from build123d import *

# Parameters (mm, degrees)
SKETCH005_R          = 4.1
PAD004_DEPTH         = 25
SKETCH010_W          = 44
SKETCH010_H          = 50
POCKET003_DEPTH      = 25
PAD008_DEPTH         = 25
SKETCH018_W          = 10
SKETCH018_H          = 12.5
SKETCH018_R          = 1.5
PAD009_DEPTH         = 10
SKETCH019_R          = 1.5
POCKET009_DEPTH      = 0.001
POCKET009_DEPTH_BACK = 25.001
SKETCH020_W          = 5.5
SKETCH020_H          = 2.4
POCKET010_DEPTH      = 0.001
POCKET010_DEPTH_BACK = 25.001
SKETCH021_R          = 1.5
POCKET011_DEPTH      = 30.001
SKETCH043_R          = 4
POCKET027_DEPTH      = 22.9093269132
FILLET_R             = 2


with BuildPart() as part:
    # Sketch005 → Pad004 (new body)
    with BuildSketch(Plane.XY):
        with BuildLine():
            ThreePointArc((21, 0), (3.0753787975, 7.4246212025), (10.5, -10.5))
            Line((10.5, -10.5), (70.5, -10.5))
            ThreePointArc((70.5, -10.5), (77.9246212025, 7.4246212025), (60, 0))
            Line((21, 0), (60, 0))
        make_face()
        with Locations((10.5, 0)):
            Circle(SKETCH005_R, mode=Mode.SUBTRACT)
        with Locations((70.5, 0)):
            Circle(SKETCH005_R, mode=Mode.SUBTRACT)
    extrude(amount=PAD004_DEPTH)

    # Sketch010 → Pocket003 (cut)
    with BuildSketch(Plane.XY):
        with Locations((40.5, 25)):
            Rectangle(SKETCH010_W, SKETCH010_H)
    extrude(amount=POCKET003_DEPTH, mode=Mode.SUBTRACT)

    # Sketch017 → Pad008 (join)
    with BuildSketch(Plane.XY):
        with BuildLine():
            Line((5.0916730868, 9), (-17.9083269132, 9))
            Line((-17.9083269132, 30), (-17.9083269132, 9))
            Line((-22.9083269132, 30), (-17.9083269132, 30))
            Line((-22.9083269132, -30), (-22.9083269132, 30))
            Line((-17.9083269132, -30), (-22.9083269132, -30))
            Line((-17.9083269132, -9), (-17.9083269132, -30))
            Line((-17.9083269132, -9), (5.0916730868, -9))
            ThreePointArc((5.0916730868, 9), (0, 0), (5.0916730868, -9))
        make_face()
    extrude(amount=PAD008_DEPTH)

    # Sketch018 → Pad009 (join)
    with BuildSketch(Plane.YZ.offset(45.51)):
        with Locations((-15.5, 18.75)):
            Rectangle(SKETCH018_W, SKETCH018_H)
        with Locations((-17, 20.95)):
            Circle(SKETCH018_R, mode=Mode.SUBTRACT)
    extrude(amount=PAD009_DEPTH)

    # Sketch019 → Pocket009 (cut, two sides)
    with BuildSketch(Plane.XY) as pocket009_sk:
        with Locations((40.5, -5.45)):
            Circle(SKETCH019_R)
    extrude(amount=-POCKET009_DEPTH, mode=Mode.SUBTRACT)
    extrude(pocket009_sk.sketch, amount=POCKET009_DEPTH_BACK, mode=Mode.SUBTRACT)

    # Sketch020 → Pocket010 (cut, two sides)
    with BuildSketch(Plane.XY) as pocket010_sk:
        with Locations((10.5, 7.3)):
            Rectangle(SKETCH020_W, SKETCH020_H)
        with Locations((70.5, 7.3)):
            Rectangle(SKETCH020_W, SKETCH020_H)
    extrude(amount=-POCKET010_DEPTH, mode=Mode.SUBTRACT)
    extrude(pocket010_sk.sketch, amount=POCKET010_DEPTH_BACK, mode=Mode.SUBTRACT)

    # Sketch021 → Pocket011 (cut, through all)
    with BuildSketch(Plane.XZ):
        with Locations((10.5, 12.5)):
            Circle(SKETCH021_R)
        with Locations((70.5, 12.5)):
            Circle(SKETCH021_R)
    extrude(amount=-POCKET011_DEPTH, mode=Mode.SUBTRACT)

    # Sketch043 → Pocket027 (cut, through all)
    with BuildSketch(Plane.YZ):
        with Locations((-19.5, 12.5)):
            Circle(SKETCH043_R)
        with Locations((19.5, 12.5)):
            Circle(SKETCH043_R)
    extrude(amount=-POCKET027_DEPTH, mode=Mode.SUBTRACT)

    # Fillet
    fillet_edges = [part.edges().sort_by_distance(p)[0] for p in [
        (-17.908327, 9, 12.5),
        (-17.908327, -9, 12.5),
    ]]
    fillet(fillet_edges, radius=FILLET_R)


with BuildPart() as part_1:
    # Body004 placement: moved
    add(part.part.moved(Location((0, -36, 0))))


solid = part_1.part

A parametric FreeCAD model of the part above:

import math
import FreeCAD as App
import Part
import Sketcher
Q = App.Units.Quantity


def edges_at(feature, points):
    """Names of the edges that pass closest to the given points."""
    edges = feature.Shape.Edges
    near = lambda p: min(range(len(edges)), key=lambda i: edges[i].distToShape(Part.Vertex(*p))[0])
    return sorted({f"Edge{near(p) + 1}" for p in points})

doc = App.newDocument("Part")
body = doc.addObject("PartDesign::Body", "Body")

# Sketch on XY plane
sketch1 = body.newObject("Sketcher::SketchObject", "Sketch")
sketch1.AttachmentSupport = (doc.getObject("XY_Plane"), [""])
sketch1.MapMode = "FlatFace"
sketch1.addGeometry(Part.ArcOfCircle(Part.Circle(App.Vector(10.5, 0, 0), App.Vector(0, 0, 1), 10.5), math.radians(0), math.radians(270)), False)
sketch1.addGeometry(Part.LineSegment(App.Vector(10.5, -10.5, 0), App.Vector(70.5, -10.5, 0)), False)
sketch1.addGeometry(Part.ArcOfCircle(Part.Circle(App.Vector(70.5, 0, 0), App.Vector(0, 0, 1), 10.5), math.radians(-90), math.radians(180)), False)
sketch1.addGeometry(Part.LineSegment(App.Vector(60, 0, 0), App.Vector(21, 0, 0)), False)
sketch1.addGeometry(Part.Circle(App.Vector(10.5, 0, 0), App.Vector(0, 0, 1), 4.1), False)
sketch1.addGeometry(Part.Circle(App.Vector(70.5, 0, 0), App.Vector(0, 0, 1), 4.1), False)
sketch1.addConstraint(Sketcher.Constraint("Tangent", 0, 2, 1, 1))
sketch1.addConstraint(Sketcher.Constraint("Tangent", 1, 2, 2, 1))
sketch1.addConstraint(Sketcher.Constraint("Coincident", 2, 2, 3, 1))
sketch1.addConstraint(Sketcher.Constraint("Coincident", 3, 2, 0, 1))
sketch1.addConstraint(Sketcher.Constraint("Horizontal", 1))
sketch1.addConstraint(Sketcher.Constraint("Horizontal", 3))
sketch1.addConstraint(Sketcher.Constraint("Coincident", 4, 3, 0, 3))
sketch1.addConstraint(Sketcher.Constraint("Coincident", 5, 3, 2, 3))
sketch1.addConstraint(Sketcher.Constraint("Equal", 0, 2))
sketch1.addConstraint(Sketcher.Constraint("Equal", 4, 5))
sketch1.addConstraint(Sketcher.Constraint("PointOnObject", 0, 3, -1))
sketch1.addConstraint(Sketcher.Constraint("PointOnObject", 2, 2, -1))
sketch1.addConstraint(Sketcher.Constraint("Diameter", 4, Q("8.2 mm")))
sketch1.addConstraint(Sketcher.Constraint("Radius", 0, Q("10.5 mm")))
sketch1.addConstraint(Sketcher.Constraint("DistanceX", 1, 1, 1, 2, Q("60 mm")))
sketch1.addConstraint(Sketcher.Constraint("DistanceX", -1, 1, 2, 2, Q("60 mm")))
pad1 = body.newObject("PartDesign::Pad", "Pad")
pad1.Profile = sketch1
pad1.Length = 25

# Sketch on XY plane
sketch2 = body.newObject("Sketcher::SketchObject", "Sketch001")
sketch2.AttachmentSupport = (doc.getObject("XY_Plane"), [""])
sketch2.MapMode = "FlatFace"
sketch2.addGeometry(Part.LineSegment(App.Vector(18.5, 50, 0), App.Vector(18.5, 0, 0)), False)
sketch2.addGeometry(Part.LineSegment(App.Vector(18.5, 0, 0), App.Vector(62.5, 0, 0)), False)
sketch2.addGeometry(Part.LineSegment(App.Vector(62.5, 0, 0), App.Vector(62.5, 50, 0)), False)
sketch2.addGeometry(Part.LineSegment(App.Vector(62.5, 50, 0), App.Vector(18.5, 50, 0)), False)
sketch2.addConstraint(Sketcher.Constraint("Coincident", 0, 2, 1, 1))
sketch2.addConstraint(Sketcher.Constraint("Coincident", 1, 2, 2, 1))
sketch2.addConstraint(Sketcher.Constraint("Coincident", 2, 2, 3, 1))
sketch2.addConstraint(Sketcher.Constraint("Coincident", 3, 2, 0, 1))
sketch2.addConstraint(Sketcher.Constraint("Vertical", 0))
sketch2.addConstraint(Sketcher.Constraint("Horizontal", 1))
sketch2.addConstraint(Sketcher.Constraint("Vertical", 2))
sketch2.addConstraint(Sketcher.Constraint("Horizontal", 3))
sketch2.addConstraint(Sketcher.Constraint("PointOnObject", 0, 2, -1))
sketch2.addConstraint(Sketcher.Constraint("DistanceX", 1, 1, 1, 2, Q("44 mm")))
sketch2.addConstraint(Sketcher.Constraint("DistanceY", 0, 2, 0, 1, Q("50 mm")))
sketch2.addConstraint(Sketcher.Constraint("DistanceX", -1, 1, 0, 2, Q("18.5 mm")))
pocket1 = body.newObject("PartDesign::Pocket", "Pocket")
pocket1.Profile = sketch2
pocket1.Length = 25
pocket1.Reversed = True

# Sketch on XY plane
sketch3 = body.newObject("Sketcher::SketchObject", "Sketch002")
sketch3.AttachmentSupport = (doc.getObject("XY_Plane"), [""])
sketch3.MapMode = "FlatFace"
sketch3.addGeometry(Part.LineSegment(App.Vector(5.091673, 9, 0), App.Vector(-17.908327, 9, 0)), False)
sketch3.addGeometry(Part.LineSegment(App.Vector(-17.908327, 9, 0), App.Vector(-17.908327, 30, 0)), False)
sketch3.addGeometry(Part.LineSegment(App.Vector(-17.908327, 30, 0), App.Vector(-22.908327, 30, 0)), False)
sketch3.addGeometry(Part.LineSegment(App.Vector(-22.908327, 30, 0), App.Vector(-22.908327, -30, 0)), False)
sketch3.addGeometry(Part.LineSegment(App.Vector(-22.908327, -30, 0), App.Vector(-17.908327, -30, 0)), False)
sketch3.addGeometry(Part.LineSegment(App.Vector(-17.908327, -30, 0), App.Vector(-17.908327, -9, 0)), False)
sketch3.addGeometry(Part.LineSegment(App.Vector(-17.908327, -9, 0), App.Vector(5.091673, -9, 0)), False)
sketch3.addGeometry(Part.ArcOfCircle(Part.Circle(App.Vector(10.5, 0, 0), App.Vector(0, 0, 1), 10.5), math.radians(121.002719), math.radians(238.997281)), False)
sketch3.addConstraint(Sketcher.Constraint("Coincident", 0, 2, 1, 1))
sketch3.addConstraint(Sketcher.Constraint("Coincident", 1, 2, 2, 1))
sketch3.addConstraint(Sketcher.Constraint("Coincident", 2, 2, 3, 1))
sketch3.addConstraint(Sketcher.Constraint("Coincident", 3, 2, 4, 1))
sketch3.addConstraint(Sketcher.Constraint("Coincident", 4, 2, 5, 1))
sketch3.addConstraint(Sketcher.Constraint("Coincident", 5, 2, 6, 1))
sketch3.addConstraint(Sketcher.Constraint("Coincident", 6, 2, 7, 2))
sketch3.addConstraint(Sketcher.Constraint("Coincident", 7, 1, 0, 1))
sketch3.addConstraint(Sketcher.Constraint("Horizontal", 0))
sketch3.addConstraint(Sketcher.Constraint("Vertical", 1))
sketch3.addConstraint(Sketcher.Constraint("Horizontal", 2))
sketch3.addConstraint(Sketcher.Constraint("Vertical", 3))
sketch3.addConstraint(Sketcher.Constraint("Horizontal", 4))
sketch3.addConstraint(Sketcher.Constraint("Vertical", 5))
sketch3.addConstraint(Sketcher.Constraint("Horizontal", 6))
sketch3.addConstraint(Sketcher.Constraint("Symmetric", 1, 2, 4, 2, -1))
sketch3.addConstraint(Sketcher.Constraint("Symmetric", 6, 2, 7, 1, -1))
sketch3.addConstraint(Sketcher.Constraint("Radius", 7, Q("10.5 mm")))
sketch3.addConstraint(Sketcher.Constraint("DistanceX", 0, 2, 0, 1, Q("23 mm")))
sketch3.addConstraint(Sketcher.Constraint("DistanceX", 2, 2, 2, 1, Q("5 mm")))
sketch3.addConstraint(Sketcher.Constraint("DistanceY", 1, 1, 1, 2, Q("21 mm")))
sketch3.addConstraint(Sketcher.Constraint("DistanceY", 3, 2, 3, 1, Q("60 mm")))
sketch3.addConstraint(Sketcher.Constraint("DistanceX", -1, 1, 7, 3, Q("10.5 mm")))
pad2 = body.newObject("PartDesign::Pad", "Pad001")
pad2.Profile = sketch3
pad2.Length = 25

# Sketch on YZ plane
sketch4 = body.newObject("Sketcher::SketchObject", "Sketch003")
sketch4.AttachmentSupport = (doc.getObject("YZ_Plane"), [""])
sketch4.MapMode = "FlatFace"
sketch4.AttachmentOffset = App.Placement(App.Vector(0, 0, 45.51), App.Rotation())
sketch4.addGeometry(Part.LineSegment(App.Vector(-20.5, 25, 0), App.Vector(-20.5, 12.5, 0)), False)
sketch4.addGeometry(Part.LineSegment(App.Vector(-20.5, 12.5, 0), App.Vector(-10.5, 12.5, 0)), False)
sketch4.addGeometry(Part.LineSegment(App.Vector(-10.5, 12.5, 0), App.Vector(-10.5, 25, 0)), False)
sketch4.addGeometry(Part.LineSegment(App.Vector(-10.5, 25, 0), App.Vector(-20.5, 25, 0)), False)
sketch4.addGeometry(Part.Circle(App.Vector(-17, 20.95, 0), App.Vector(0, 0, 1), 1.5), False)
sketch4.addConstraint(Sketcher.Constraint("Coincident", 0, 2, 1, 1))
sketch4.addConstraint(Sketcher.Constraint("Coincident", 1, 2, 2, 1))
sketch4.addConstraint(Sketcher.Constraint("Coincident", 2, 2, 3, 1))
sketch4.addConstraint(Sketcher.Constraint("Coincident", 3, 2, 0, 1))
sketch4.addConstraint(Sketcher.Constraint("Vertical", 0))
sketch4.addConstraint(Sketcher.Constraint("Horizontal", 1))
sketch4.addConstraint(Sketcher.Constraint("Vertical", 2))
sketch4.addConstraint(Sketcher.Constraint("Horizontal", 3))
sketch4.addConstraint(Sketcher.Constraint("Diameter", 4, Q("3 mm")))
sketch4.addConstraint(Sketcher.Constraint("DistanceX", 1, 1, 1, 2, Q("10 mm")))
sketch4.addConstraint(Sketcher.Constraint("DistanceY", 0, 2, 0, 1, Q("12.5 mm")))
sketch4.addConstraint(Sketcher.Constraint("DistanceX", 4, 3, -1, 1, Q("17 mm")))
sketch4.addConstraint(Sketcher.Constraint("DistanceY", -1, 1, 2, 2, Q("25 mm")))
sketch4.addConstraint(Sketcher.Constraint("DistanceX", 0, 2, -1, 1, Q("20.5 mm")))
sketch4.addConstraint(Sketcher.Constraint("DistanceY", -1, 1, 4, 3, Q("20.95 mm")))
pad3 = body.newObject("PartDesign::Pad", "Pad002")
pad3.Profile = sketch4
pad3.Length = 10

# Sketch on XY plane
sketch5 = body.newObject("Sketcher::SketchObject", "Sketch004")
sketch5.AttachmentSupport = (doc.getObject("XY_Plane"), [""])
sketch5.MapMode = "FlatFace"
sketch5.addGeometry(Part.Circle(App.Vector(40.5, -5.45, 0), App.Vector(0, 0, 1), 1.5), False)
sketch5.addConstraint(Sketcher.Constraint("Diameter", 0, Q("3 mm")))
sketch5.addConstraint(Sketcher.Constraint("DistanceX", -1, 1, 0, 3, Q("40.5 mm")))
sketch5.addConstraint(Sketcher.Constraint("DistanceY", 0, 3, -1, 1, Q("5.45 mm")))
pocket2 = body.newObject("PartDesign::Pocket", "Pocket001")
pocket2.Profile = sketch5
pocket2.Type = "ThroughAll"
pocket2.Midplane = True

# Sketch on XY plane
sketch6 = body.newObject("Sketcher::SketchObject", "Sketch005")
sketch6.AttachmentSupport = (doc.getObject("XY_Plane"), [""])
sketch6.MapMode = "FlatFace"
sketch6.addGeometry(Part.LineSegment(App.Vector(7.75, 8.5, 0), App.Vector(7.75, 6.1, 0)), False)
sketch6.addGeometry(Part.LineSegment(App.Vector(7.75, 6.1, 0), App.Vector(13.25, 6.1, 0)), False)
sketch6.addGeometry(Part.LineSegment(App.Vector(13.25, 6.1, 0), App.Vector(13.25, 8.5, 0)), False)
sketch6.addGeometry(Part.LineSegment(App.Vector(13.25, 8.5, 0), App.Vector(7.75, 8.5, 0)), False)
sketch6.addGeometry(Part.LineSegment(App.Vector(67.75, 8.5, 0), App.Vector(67.75, 6.1, 0)), False)
sketch6.addGeometry(Part.LineSegment(App.Vector(67.75, 6.1, 0), App.Vector(73.25, 6.1, 0)), False)
sketch6.addGeometry(Part.LineSegment(App.Vector(73.25, 6.1, 0), App.Vector(73.25, 8.5, 0)), False)
sketch6.addGeometry(Part.LineSegment(App.Vector(73.25, 8.5, 0), App.Vector(67.75, 8.5, 0)), False)
sketch6.addConstraint(Sketcher.Constraint("Coincident", 0, 2, 1, 1))
sketch6.addConstraint(Sketcher.Constraint("Coincident", 1, 2, 2, 1))
sketch6.addConstraint(Sketcher.Constraint("Coincident", 2, 2, 3, 1))
sketch6.addConstraint(Sketcher.Constraint("Coincident", 3, 2, 0, 1))
sketch6.addConstraint(Sketcher.Constraint("Coincident", 4, 2, 5, 1))
sketch6.addConstraint(Sketcher.Constraint("Coincident", 5, 2, 6, 1))
sketch6.addConstraint(Sketcher.Constraint("Coincident", 6, 2, 7, 1))
sketch6.addConstraint(Sketcher.Constraint("Coincident", 7, 2, 4, 1))
sketch6.addConstraint(Sketcher.Constraint("Vertical", 0))
sketch6.addConstraint(Sketcher.Constraint("Horizontal", 1))
sketch6.addConstraint(Sketcher.Constraint("Vertical", 2))
sketch6.addConstraint(Sketcher.Constraint("Horizontal", 3))
sketch6.addConstraint(Sketcher.Constraint("Vertical", 4))
sketch6.addConstraint(Sketcher.Constraint("Horizontal", 5))
sketch6.addConstraint(Sketcher.Constraint("Vertical", 6))
sketch6.addConstraint(Sketcher.Constraint("Horizontal", 7))
sketch6.addConstraint(Sketcher.Constraint("Horizontal", 1, 2, 4, 2))
sketch6.addConstraint(Sketcher.Constraint("Horizontal", 3, 2, 6, 2))
sketch6.addConstraint(Sketcher.Constraint("Equal", 3, 5))
sketch6.addConstraint(Sketcher.Constraint("DistanceX", 1, 1, 1, 2, Q("5.5 mm")))
sketch6.addConstraint(Sketcher.Constraint("DistanceY", 0, 2, 0, 1, Q("2.4 mm")))
sketch6.addConstraint(Sketcher.Constraint("DistanceX", 0, 2, 4, 2, Q("60 mm")))
sketch6.addConstraint(Sketcher.Constraint("DistanceY", -1, 1, 0, 2, Q("6.1 mm")))
sketch6.addConstraint(Sketcher.Constraint("DistanceX", -1, 1, 0, 2, Q("7.75 mm")))
pocket3 = body.newObject("PartDesign::Pocket", "Pocket002")
pocket3.Profile = sketch6
pocket3.Type = "ThroughAll"
pocket3.Midplane = True

# Sketch on XZ plane
sketch7 = body.newObject("Sketcher::SketchObject", "Sketch006")
sketch7.AttachmentSupport = (doc.getObject("XZ_Plane"), [""])
sketch7.MapMode = "FlatFace"
sketch7.addGeometry(Part.Circle(App.Vector(10.5, 12.5, 0), App.Vector(0, 0, 1), 1.5), False)
sketch7.addGeometry(Part.Circle(App.Vector(70.5, 12.5, 0), App.Vector(0, 0, 1), 1.5), False)
sketch7.addConstraint(Sketcher.Constraint("Equal", 0, 1))
sketch7.addConstraint(Sketcher.Constraint("Horizontal", 0, 3, 1, 3))
sketch7.addConstraint(Sketcher.Constraint("Diameter", 0, Q("3 mm")))
sketch7.addConstraint(Sketcher.Constraint("DistanceX", 0, 3, 1, 3, Q("60 mm")))
sketch7.addConstraint(Sketcher.Constraint("DistanceX", -1, 1, 0, 3, Q("10.5 mm")))
sketch7.addConstraint(Sketcher.Constraint("DistanceY", -1, 1, 0, 3, Q("12.5 mm")))
pocket4 = body.newObject("PartDesign::Pocket", "Pocket003")
pocket4.Profile = sketch7
pocket4.Type = "ThroughAll"

# Sketch on YZ plane
sketch8 = body.newObject("Sketcher::SketchObject", "Sketch007")
sketch8.AttachmentSupport = (doc.getObject("YZ_Plane"), [""])
sketch8.MapMode = "FlatFace"
sketch8.addGeometry(Part.Circle(App.Vector(-19.5, 12.5, 0), App.Vector(0, 0, 1), 4), False)
sketch8.addGeometry(Part.Circle(App.Vector(19.5, 12.5, 0), App.Vector(0, 0, 1), 4), False)
sketch8.addConstraint(Sketcher.Constraint("Equal", 0, 1))
sketch8.addConstraint(Sketcher.Constraint("Symmetric", 0, 3, 1, 3, -2))
sketch8.addConstraint(Sketcher.Constraint("Diameter", 0, Q("8 mm")))
sketch8.addConstraint(Sketcher.Constraint("DistanceX", 0, 3, 1, 3, Q("39 mm")))
sketch8.addConstraint(Sketcher.Constraint("DistanceY", -1, 1, 0, 3, Q("12.5 mm")))
pocket5 = body.newObject("PartDesign::Pocket", "Pocket004")
pocket5.Profile = sketch8
pocket5.Type = "ThroughAll"
doc.recompute()

fillet = body.newObject("PartDesign::Fillet", "Fillet")
fillet.Base = (pocket5, edges_at(pocket5, [(-17.908, 9, 12.5), (-17.908, -9, 12.5)]))
fillet.Radius = 2
body2 = doc.addObject("PartDesign::Body", "Body001")
doc.recompute()

body.Placement = App.Placement(App.Vector(0, -36, 0), App.Rotation(App.Vector(0, 0, 1), 0))
boolean = body2.newObject("PartDesign::Boolean", "Boolean")
boolean.Type = "Fuse"
boolean.addObjects([body])

doc.recompute()
